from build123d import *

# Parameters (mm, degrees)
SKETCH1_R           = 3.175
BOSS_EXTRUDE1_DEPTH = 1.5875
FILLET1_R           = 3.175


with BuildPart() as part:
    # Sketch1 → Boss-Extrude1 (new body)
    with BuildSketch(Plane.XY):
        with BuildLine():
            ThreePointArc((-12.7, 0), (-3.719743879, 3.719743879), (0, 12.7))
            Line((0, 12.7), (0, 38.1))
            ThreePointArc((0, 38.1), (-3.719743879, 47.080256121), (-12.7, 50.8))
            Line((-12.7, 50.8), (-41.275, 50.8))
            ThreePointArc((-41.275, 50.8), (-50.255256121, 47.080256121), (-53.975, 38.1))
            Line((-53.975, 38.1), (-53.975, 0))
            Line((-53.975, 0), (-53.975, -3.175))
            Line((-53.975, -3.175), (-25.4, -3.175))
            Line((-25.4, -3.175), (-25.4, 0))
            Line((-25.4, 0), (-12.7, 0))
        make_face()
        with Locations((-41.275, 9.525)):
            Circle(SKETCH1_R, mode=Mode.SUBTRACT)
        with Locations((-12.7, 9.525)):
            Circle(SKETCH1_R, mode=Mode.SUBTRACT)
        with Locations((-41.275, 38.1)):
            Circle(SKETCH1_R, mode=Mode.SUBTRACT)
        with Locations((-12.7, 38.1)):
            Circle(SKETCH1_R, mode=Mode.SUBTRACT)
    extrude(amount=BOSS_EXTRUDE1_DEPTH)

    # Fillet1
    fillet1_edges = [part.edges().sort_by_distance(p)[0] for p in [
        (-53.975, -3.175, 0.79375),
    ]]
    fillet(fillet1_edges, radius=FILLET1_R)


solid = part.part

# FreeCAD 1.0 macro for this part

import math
import FreeCAD as App
import Part
import Sketcher
from FreeCAD import Vector
Q = App.Units.Quantity


def edges_at(feature, points):
    """Names of the edges that pass closest to the given points."""
    edges = feature.Shape.Edges
    near = lambda p: min(range(len(edges)), key=lambda i: edges[i].distToShape(Part.Vertex(*p))[0])
    return sorted({f"Edge{near(p) + 1}" for p in points})

doc = App.newDocument("Part")
body = doc.addObject("PartDesign::Body", "Body")

sketch1 = body.newObject("Sketcher::SketchObject", "Sketch")
sketch1.AttachmentSupport = (doc.getObject("XY_Plane"), [""])
sketch1.MapMode = "FlatFace"
sketch1.addGeometry([
    Part.ArcOfCircle(Part.Circle(Vector(-12.7, 12.7, 0), Vector(0, 0, 1), 12.7), math.radians(-90), math.radians(0)),
    Part.LineSegment(Vector(0, 12.7, 0), Vector(0, 38.1, 0)),
    Part.ArcOfCircle(Part.Circle(Vector(-12.7, 38.1, 0), Vector(0, 0, 1), 12.7), math.radians(0), math.radians(90)),
    Part.LineSegment(Vector(-12.7, 50.8, 0), Vector(-41.3, 50.8, 0)),
    Part.ArcOfCircle(Part.Circle(Vector(-41.3, 38.1, 0), Vector(0, 0, 1), 12.7), math.radians(90), math.radians(180)),
    Part.LineSegment(Vector(-54, 38.1, 0), Vector(-54, -3.2, 0)),
    Part.LineSegment(Vector(-54, -3.2, 0), Vector(-25.4, -3.2, 0)),
    Part.LineSegment(Vector(-25.4, -3.2, 0), Vector(-25.4, 0, 0)),
    Part.LineSegment(Vector(-25.4, 0, 0), Vector(-12.7, 0, 0)),
    Part.Circle(Vector(-41.3, 9.5, 0), Vector(0, 0, 1), 3.2),
    Part.Circle(Vector(-12.7, 9.5, 0), Vector(0, 0, 1), 3.2),
    Part.Circle(Vector(-41.3, 38.1, 0), Vector(0, 0, 1), 3.2),
    Part.Circle(Vector(-12.7, 38.1, 0), Vector(0, 0, 1), 3.2),
], False)
sketch1.addConstraint([
    Sketcher.Constraint("Tangent", 0, 2, 1, 1),
    Sketcher.Constraint("Tangent", 1, 2, 2, 1),
    Sketcher.Constraint("Tangent", 2, 2, 3, 1),
    Sketcher.Constraint("Tangent", 3, 2, 4, 1),
    Sketcher.Constraint("Tangent", 4, 2, 5, 1),
    Sketcher.Constraint("Coincident", 5, 2, 6, 1),
    Sketcher.Constraint("Coincident", 6, 2, 7, 1),
    Sketcher.Constraint("Coincident", 7, 2, 8, 1),
    Sketcher.Constraint("Tangent", 8, 2, 0, 1),
    Sketcher.Constraint("Vertical", 1),
    Sketcher.Constraint("Horizontal", 3),
    Sketcher.Constraint("Vertical", 5),
    Sketcher.Constraint("Horizontal", 6),
    Sketcher.Constraint("Vertical", 7),
    Sketcher.Constraint("Horizontal", 8),
    Sketcher.Constraint("Coincident", 11, 3, 4, 3),
    Sketcher.Constraint("Coincident", 12, 3, 2, 3),
    Sketcher.Constraint("Equal", 0, 2),
    Sketcher.Constraint("Equal", 2, 4),
    Sketcher.Constraint("Equal", 9, 10),
    Sketcher.Constraint("Equal", 10, 11),
    Sketcher.Constraint("Equal", 11, 12),
    Sketcher.Constraint("PointOnObject", 0, 2, -2),
    Sketcher.Constraint("PointOnObject", 7, 2, -1),
    Sketcher.Constraint("Horizontal", 9, 3, 10, 3),
    Sketcher.Constraint("Vertical", 4, 3, 9, 3),
    Sketcher.Constraint("Vertical", 2, 3, 10, 3),
    Sketcher.Constraint("Equal", 3, 6),
    Sketcher.Constraint("Radius", 0, Q("0.5 in")),
    Sketcher.Constraint("Diameter", 9, Q("0.25 in")),
    Sketcher.Constraint("DistanceY", 1, 1, 1, 2, Q("1 in")),
    Sketcher.Constraint("DistanceY", 5, 2, 9, 3, Q("0.5 in")),
    Sketcher.Constraint("DistanceX", 3, 2, 3, 1, Q("1.125 in")),
    Sketcher.Constraint("DistanceY", 5, 2, 5, 1, Q("1.625 in")),
])
pad1 = body.newObject("PartDesign::Pad", "Pad")
pad1.Profile = sketch1
pad1.Length = Q("0.0625 in")
doc.recompute()

fillet = body.newObject("PartDesign::Fillet", "Fillet")
fillet.Base = (pad1, edges_at(pad1, [(-53.975, -3.175, 0.794)]))
fillet.Radius = Q("0.125 in")

doc.recompute()
